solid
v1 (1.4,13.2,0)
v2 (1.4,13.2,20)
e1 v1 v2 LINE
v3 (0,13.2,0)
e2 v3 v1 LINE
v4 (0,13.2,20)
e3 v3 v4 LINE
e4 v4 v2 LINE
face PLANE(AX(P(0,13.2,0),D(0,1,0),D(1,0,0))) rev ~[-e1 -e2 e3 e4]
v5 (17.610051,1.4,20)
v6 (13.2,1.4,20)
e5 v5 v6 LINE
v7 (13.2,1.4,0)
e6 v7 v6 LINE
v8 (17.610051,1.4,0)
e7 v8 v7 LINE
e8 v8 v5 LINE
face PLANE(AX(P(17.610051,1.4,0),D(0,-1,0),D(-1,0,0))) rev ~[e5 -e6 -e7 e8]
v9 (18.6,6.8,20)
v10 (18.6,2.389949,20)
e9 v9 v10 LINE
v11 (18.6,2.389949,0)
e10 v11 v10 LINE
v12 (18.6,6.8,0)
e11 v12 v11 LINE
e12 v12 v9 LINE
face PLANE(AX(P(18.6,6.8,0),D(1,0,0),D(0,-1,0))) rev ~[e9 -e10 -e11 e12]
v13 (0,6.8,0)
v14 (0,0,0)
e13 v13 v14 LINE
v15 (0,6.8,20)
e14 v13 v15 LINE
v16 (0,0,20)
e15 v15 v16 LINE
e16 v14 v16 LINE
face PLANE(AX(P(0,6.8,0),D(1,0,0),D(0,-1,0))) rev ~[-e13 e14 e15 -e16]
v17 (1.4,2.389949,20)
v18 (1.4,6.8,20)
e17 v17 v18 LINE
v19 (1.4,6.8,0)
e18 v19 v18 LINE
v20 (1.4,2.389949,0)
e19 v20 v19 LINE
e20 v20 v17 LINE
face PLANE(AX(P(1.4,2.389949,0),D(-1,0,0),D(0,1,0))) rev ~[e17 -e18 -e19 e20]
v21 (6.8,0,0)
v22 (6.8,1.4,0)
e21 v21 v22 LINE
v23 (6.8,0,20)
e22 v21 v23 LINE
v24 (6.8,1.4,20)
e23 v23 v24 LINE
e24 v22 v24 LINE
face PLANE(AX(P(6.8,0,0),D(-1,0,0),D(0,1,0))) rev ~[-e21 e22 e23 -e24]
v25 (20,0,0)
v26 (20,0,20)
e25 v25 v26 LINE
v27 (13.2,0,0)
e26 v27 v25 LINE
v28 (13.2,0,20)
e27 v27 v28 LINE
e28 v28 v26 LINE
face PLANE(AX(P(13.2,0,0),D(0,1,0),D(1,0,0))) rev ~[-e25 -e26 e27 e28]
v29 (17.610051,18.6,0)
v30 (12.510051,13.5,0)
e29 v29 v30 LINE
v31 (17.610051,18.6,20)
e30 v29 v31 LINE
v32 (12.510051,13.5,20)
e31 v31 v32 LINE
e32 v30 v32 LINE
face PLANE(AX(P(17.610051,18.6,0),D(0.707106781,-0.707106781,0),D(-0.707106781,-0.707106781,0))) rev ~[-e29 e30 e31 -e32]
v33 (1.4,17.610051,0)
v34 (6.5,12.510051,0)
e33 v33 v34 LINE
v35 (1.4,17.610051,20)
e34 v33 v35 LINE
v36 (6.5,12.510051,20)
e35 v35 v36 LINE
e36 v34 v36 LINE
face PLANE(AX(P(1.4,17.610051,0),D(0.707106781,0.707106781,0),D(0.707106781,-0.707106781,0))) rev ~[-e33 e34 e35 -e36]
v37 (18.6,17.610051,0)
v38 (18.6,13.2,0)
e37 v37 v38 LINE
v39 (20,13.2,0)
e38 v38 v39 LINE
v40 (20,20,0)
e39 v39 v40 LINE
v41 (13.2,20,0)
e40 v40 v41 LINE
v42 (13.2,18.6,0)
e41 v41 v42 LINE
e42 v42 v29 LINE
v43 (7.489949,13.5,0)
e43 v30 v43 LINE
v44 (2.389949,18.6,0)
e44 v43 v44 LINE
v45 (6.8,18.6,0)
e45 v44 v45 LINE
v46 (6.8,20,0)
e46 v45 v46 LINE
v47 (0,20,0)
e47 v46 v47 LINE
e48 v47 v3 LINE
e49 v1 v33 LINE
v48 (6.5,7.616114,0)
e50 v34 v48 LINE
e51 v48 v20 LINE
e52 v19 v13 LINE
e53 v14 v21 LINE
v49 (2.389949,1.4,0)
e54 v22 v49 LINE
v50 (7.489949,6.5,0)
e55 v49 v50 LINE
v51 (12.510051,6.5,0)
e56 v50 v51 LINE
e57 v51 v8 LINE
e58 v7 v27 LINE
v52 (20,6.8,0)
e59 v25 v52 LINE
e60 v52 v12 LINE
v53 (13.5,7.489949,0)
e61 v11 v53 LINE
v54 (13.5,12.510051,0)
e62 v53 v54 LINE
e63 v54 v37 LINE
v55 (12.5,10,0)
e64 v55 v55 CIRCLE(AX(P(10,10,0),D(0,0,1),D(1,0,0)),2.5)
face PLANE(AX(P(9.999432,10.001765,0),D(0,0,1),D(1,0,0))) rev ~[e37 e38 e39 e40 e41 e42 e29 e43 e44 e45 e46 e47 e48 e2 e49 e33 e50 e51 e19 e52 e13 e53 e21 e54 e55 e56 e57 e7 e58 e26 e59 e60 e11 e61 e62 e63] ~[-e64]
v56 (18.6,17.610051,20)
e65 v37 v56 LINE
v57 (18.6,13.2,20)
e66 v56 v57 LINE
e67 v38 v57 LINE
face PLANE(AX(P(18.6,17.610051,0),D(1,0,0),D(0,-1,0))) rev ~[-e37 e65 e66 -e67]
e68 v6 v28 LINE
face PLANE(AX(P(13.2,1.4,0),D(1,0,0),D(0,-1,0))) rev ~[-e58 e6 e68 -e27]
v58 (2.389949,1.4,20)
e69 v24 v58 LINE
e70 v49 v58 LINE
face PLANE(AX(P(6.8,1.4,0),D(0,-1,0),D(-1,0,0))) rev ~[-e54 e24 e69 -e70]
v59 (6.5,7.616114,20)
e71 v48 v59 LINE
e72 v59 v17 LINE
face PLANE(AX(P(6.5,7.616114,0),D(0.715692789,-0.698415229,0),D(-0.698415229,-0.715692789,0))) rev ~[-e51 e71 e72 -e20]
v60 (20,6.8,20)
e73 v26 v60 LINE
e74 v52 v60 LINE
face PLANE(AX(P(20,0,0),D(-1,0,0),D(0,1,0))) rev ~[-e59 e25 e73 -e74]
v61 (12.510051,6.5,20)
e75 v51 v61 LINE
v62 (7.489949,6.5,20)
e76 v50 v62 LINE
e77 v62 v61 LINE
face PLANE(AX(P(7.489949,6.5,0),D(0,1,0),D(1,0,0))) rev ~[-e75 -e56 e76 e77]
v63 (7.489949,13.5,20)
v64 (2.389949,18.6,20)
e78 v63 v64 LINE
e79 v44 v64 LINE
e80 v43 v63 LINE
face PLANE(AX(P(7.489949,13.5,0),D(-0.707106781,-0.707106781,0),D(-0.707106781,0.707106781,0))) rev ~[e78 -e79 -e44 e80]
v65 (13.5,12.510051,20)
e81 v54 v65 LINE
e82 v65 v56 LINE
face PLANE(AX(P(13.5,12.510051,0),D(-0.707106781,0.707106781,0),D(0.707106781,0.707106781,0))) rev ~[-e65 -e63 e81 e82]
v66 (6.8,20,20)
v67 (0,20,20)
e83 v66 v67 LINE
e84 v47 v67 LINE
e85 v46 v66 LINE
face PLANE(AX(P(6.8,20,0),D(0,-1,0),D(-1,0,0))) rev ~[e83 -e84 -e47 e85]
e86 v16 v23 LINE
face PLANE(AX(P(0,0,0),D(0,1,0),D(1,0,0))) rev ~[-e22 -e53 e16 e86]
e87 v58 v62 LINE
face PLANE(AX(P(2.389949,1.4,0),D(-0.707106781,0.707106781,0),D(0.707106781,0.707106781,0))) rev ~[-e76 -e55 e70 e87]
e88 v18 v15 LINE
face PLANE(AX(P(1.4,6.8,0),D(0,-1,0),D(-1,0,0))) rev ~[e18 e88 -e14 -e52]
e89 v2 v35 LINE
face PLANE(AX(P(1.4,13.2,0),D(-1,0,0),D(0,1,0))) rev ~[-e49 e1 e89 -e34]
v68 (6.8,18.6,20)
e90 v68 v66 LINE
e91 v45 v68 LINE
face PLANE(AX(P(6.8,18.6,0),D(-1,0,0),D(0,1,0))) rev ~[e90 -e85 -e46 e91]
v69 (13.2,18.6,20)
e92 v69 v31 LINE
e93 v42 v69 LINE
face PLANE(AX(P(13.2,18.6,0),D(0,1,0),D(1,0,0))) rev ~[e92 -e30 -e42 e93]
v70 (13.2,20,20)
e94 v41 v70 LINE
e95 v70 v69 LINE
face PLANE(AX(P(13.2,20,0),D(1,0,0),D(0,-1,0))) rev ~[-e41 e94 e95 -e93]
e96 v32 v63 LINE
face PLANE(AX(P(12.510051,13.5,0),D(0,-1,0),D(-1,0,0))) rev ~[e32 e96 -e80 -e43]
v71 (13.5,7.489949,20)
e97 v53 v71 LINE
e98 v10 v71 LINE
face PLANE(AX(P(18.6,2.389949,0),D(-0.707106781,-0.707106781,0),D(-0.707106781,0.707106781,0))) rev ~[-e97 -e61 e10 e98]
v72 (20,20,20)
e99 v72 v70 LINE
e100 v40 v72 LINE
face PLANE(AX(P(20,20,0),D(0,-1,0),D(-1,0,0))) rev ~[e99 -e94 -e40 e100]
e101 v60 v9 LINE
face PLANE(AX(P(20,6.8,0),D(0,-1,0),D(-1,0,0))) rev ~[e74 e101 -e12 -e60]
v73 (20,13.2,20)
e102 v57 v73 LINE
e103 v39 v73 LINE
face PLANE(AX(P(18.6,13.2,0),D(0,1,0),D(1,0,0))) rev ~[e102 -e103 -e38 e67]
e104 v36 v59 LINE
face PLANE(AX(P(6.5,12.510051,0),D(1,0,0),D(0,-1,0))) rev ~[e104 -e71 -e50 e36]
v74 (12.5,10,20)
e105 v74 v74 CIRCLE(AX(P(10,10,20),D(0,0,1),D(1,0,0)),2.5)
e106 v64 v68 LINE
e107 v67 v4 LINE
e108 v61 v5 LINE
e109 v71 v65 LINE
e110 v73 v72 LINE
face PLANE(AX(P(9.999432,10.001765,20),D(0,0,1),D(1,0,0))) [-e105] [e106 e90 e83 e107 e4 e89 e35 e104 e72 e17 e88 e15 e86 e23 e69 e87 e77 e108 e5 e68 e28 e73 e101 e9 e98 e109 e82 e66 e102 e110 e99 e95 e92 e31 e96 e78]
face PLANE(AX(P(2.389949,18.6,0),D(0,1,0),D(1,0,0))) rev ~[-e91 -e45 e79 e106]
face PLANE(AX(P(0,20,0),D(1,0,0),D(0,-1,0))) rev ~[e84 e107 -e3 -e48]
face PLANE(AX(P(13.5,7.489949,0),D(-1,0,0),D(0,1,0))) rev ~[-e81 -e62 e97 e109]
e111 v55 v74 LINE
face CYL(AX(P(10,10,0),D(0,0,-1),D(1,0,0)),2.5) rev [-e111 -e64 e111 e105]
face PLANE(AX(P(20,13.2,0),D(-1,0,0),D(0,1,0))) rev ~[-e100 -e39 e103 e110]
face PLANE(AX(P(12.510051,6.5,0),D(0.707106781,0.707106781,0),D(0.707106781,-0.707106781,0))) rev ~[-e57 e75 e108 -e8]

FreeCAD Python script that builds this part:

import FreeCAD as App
import Part
import Sketcher
from FreeCAD import Vector
Q = App.Units.Quantity


def add_polygon(sketch, points):
    """Adds a closed chain of lines whose ends are joined by coincident constraints."""
    first, n = sketch.GeometryCount, len(points)
    for a, b in zip(points, points[1:] + points[:1]):
        sketch.addGeometry(Part.LineSegment(App.Vector(*a, 0), App.Vector(*b, 0)), False)
    for i in range(n):
        sketch.addConstraint(Sketcher.Constraint("Coincident", first + i, 2, first + (i + 1) % n, 1))

doc = App.newDocument("Part")
params = doc.addObject("Spreadsheet::Sheet", "Params")
for row, (alias, value) in enumerate([
    ("sketch1_diameter", "5 mm"),
    ("sketch1_width", "1.4 mm"),
    ("sketch1_width2", "6.8 mm"),
    ("pad1_length", "20 mm"),
], start=1):
    params.set(f"A{row}", alias)
    params.set(f"B{row}", "=" + value)
    params.setAlias(f"B{row}", alias)

body = doc.addObject("PartDesign::Body", "Body")

# Sketch on XY plane
sketch1 = body.newObject("Sketcher::SketchObject", "Sketch")
sketch1.AttachmentSupport = (doc.getObject("XY_Plane"), [""])
sketch1.MapMode = "FlatFace"
add_polygon(sketch1, [(6.5, 7.6), (1.4, 2.4), (1.4, 6.8), (0, 6.8), (0, 0), (6.8, 0), (6.8, 1.4), (2.4, 1.4), (7.5, 6.5), (12.5, 6.5), (17.6, 1.4), (13.2, 1.4), (13.2, 0), (20, 0), (20, 6.8), (18.6, 6.8), (18.6, 2.4), (13.5, 7.5), (13.5, 12.5), (18.6, 17.6), (18.6, 13.2), (20, 13.2), (20, 20), (13.2, 20), (13.2, 18.6), (17.6, 18.6), (12.5, 13.5), (7.5, 13.5), (2.4, 18.6), (6.8, 18.6), (6.8, 20), (0, 20), (0, 13.2), (1.4, 13.2), (1.4, 17.6), (6.5, 12.5)])  # lines 0-35
sketch1.addGeometry(Part.Circle(Vector(10, 10, 0), Vector(0, 0, 1), 2.5), False)  # 36
sketch1.addConstraint([
    Sketcher.Constraint("Vertical", 1),
    Sketcher.Constraint("Horizontal", 2),
    Sketcher.Constraint("Vertical", 3),
    Sketcher.Constraint("Horizontal", 4),
    Sketcher.Constraint("Vertical", 5),
    Sketcher.Constraint("Horizontal", 6),
    Sketcher.Constraint("Horizontal", 8),
    Sketcher.Constraint("Horizontal", 10),
    Sketcher.Constraint("Vertical", 11),
    Sketcher.Constraint("Horizontal", 12),
    Sketcher.Constraint("Vertical", 13),
    Sketcher.Constraint("Horizontal", 14),
    Sketcher.Constraint("Vertical", 15),
    Sketcher.Constraint("Vertical", 17),
    Sketcher.Constraint("Vertical", 19),
    Sketcher.Constraint("Horizontal", 20),
    Sketcher.Constraint("Vertical", 21),
    Sketcher.Constraint("Horizontal", 22),
    Sketcher.Constraint("Vertical", 23),
    Sketcher.Constraint("Horizontal", 24),
    Sketcher.Constraint("Horizontal", 26),
    Sketcher.Constraint("Horizontal", 28),
    Sketcher.Constraint("Vertical", 29),
    Sketcher.Constraint("Horizontal", 30),
    Sketcher.Constraint("Vertical", 31),
    Sketcher.Constraint("Horizontal", 32),
    Sketcher.Constraint("Vertical", 33),
    Sketcher.Constraint("Vertical", 35),
    Sketcher.Constraint("Coincident", 3, 2, -1, 1),
    Sketcher.Constraint("PointOnObject", 11, 2, -1),
    Sketcher.Constraint("PointOnObject", 30, 2, -2),
    Sketcher.Constraint("Perpendicular", 7, 9),
    Sketcher.Constraint("Parallel", 9, 16),
    Sketcher.Constraint("Perpendicular", 16, 18),
    Sketcher.Constraint("Parallel", 18, 25),
    Sketcher.Constraint("Perpendicular", 25, 27),
    Sketcher.Constraint("Parallel", 27, 34),
    Sketcher.Constraint("Horizontal", 6, 2, 9, 2),
    Sketcher.Constraint("Horizontal", 2, 2, 13, 2),
    Sketcher.Constraint("Horizontal", 0, 2, 15, 2),
    Sketcher.Constraint("Horizontal", 24, 2, 27, 2),
    Sketcher.Constraint("Horizontal", 22, 2, 29, 2),
    Sketcher.Constraint("Horizontal", 20, 2, 31, 2),
    Sketcher.Constraint("Horizontal", 18, 2, 33, 2),
    Sketcher.Constraint("Horizontal", 17, 2, 34, 2),
    Sketcher.Constraint("Vertical", 15, 2, 18, 2),
    Sketcher.Constraint("Vertical", 13, 2, 20, 2),
    Sketcher.Constraint("Vertical", 11, 2, 22, 2),
    Sketcher.Constraint("Vertical", 9, 2, 24, 2),
    Sketcher.Constraint("Vertical", 8, 2, 25, 2),
    Sketcher.Constraint("Vertical", 7, 2, 26, 2),
    Sketcher.Constraint("Vertical", 6, 2, 27, 2),
    Sketcher.Constraint("Vertical", 5, 2, 28, 2),
    Sketcher.Constraint("Vertical", 1, 2, 32, 2),
    Sketcher.Constraint("Equal", 6, 10),
    Sketcher.Constraint("Equal", 4, 12),
    Sketcher.Constraint("Equal", 2, 14),
    Sketcher.Constraint("Equal", 28, 1),
    Sketcher.Constraint("Equal", 30, 3),
    Sketcher.Constraint("Equal", 32, 5),
    Sketcher.Constraint("Equal", 26, 17),
    Sketcher.Constraint("Equal", 15, 19),
    Sketcher.Constraint("Equal", 13, 21),
    Sketcher.Constraint("Equal", 11, 23),
    Sketcher.Constraint("Equal", 9, 16),
    Sketcher.Constraint("Diameter", 36, 5.0),
    Sketcher.Constraint("DistanceX", 2, 2, 2, 1, 1.4),
    Sketcher.Constraint("DistanceX", 4, 1, 4, 2, 6.8),
    Sketcher.Constraint("DistanceX", -1, 1, 36, 3, 10.0),
    Sketcher.Constraint("DistanceY", -1, 1, 36, 3, 10.0),
    Sketcher.Constraint("DistanceX", -1, 1, 12, 2, 20.0),
    Sketcher.Constraint("Angle", 0, Q("-134.299995 deg")),
    Sketcher.Constraint("DistanceY", 7, 2, 26, 2, 7.0),
    Sketcher.Constraint("DistanceX", 6, 2, 6, 1, 4.410051),
])
sketch1.setExpression("Constraints[101]", "Params.sketch1_diameter")
sketch1.setExpression("Constraints[102]", "Params.sketch1_width")
sketch1.setExpression("Constraints[103]", "Params.sketch1_width2")
pad1 = body.newObject("PartDesign::Pad", "Pad")
pad1.Profile = sketch1
pad1.setExpression("Length", "Params.pad1_length")

doc.recompute()
